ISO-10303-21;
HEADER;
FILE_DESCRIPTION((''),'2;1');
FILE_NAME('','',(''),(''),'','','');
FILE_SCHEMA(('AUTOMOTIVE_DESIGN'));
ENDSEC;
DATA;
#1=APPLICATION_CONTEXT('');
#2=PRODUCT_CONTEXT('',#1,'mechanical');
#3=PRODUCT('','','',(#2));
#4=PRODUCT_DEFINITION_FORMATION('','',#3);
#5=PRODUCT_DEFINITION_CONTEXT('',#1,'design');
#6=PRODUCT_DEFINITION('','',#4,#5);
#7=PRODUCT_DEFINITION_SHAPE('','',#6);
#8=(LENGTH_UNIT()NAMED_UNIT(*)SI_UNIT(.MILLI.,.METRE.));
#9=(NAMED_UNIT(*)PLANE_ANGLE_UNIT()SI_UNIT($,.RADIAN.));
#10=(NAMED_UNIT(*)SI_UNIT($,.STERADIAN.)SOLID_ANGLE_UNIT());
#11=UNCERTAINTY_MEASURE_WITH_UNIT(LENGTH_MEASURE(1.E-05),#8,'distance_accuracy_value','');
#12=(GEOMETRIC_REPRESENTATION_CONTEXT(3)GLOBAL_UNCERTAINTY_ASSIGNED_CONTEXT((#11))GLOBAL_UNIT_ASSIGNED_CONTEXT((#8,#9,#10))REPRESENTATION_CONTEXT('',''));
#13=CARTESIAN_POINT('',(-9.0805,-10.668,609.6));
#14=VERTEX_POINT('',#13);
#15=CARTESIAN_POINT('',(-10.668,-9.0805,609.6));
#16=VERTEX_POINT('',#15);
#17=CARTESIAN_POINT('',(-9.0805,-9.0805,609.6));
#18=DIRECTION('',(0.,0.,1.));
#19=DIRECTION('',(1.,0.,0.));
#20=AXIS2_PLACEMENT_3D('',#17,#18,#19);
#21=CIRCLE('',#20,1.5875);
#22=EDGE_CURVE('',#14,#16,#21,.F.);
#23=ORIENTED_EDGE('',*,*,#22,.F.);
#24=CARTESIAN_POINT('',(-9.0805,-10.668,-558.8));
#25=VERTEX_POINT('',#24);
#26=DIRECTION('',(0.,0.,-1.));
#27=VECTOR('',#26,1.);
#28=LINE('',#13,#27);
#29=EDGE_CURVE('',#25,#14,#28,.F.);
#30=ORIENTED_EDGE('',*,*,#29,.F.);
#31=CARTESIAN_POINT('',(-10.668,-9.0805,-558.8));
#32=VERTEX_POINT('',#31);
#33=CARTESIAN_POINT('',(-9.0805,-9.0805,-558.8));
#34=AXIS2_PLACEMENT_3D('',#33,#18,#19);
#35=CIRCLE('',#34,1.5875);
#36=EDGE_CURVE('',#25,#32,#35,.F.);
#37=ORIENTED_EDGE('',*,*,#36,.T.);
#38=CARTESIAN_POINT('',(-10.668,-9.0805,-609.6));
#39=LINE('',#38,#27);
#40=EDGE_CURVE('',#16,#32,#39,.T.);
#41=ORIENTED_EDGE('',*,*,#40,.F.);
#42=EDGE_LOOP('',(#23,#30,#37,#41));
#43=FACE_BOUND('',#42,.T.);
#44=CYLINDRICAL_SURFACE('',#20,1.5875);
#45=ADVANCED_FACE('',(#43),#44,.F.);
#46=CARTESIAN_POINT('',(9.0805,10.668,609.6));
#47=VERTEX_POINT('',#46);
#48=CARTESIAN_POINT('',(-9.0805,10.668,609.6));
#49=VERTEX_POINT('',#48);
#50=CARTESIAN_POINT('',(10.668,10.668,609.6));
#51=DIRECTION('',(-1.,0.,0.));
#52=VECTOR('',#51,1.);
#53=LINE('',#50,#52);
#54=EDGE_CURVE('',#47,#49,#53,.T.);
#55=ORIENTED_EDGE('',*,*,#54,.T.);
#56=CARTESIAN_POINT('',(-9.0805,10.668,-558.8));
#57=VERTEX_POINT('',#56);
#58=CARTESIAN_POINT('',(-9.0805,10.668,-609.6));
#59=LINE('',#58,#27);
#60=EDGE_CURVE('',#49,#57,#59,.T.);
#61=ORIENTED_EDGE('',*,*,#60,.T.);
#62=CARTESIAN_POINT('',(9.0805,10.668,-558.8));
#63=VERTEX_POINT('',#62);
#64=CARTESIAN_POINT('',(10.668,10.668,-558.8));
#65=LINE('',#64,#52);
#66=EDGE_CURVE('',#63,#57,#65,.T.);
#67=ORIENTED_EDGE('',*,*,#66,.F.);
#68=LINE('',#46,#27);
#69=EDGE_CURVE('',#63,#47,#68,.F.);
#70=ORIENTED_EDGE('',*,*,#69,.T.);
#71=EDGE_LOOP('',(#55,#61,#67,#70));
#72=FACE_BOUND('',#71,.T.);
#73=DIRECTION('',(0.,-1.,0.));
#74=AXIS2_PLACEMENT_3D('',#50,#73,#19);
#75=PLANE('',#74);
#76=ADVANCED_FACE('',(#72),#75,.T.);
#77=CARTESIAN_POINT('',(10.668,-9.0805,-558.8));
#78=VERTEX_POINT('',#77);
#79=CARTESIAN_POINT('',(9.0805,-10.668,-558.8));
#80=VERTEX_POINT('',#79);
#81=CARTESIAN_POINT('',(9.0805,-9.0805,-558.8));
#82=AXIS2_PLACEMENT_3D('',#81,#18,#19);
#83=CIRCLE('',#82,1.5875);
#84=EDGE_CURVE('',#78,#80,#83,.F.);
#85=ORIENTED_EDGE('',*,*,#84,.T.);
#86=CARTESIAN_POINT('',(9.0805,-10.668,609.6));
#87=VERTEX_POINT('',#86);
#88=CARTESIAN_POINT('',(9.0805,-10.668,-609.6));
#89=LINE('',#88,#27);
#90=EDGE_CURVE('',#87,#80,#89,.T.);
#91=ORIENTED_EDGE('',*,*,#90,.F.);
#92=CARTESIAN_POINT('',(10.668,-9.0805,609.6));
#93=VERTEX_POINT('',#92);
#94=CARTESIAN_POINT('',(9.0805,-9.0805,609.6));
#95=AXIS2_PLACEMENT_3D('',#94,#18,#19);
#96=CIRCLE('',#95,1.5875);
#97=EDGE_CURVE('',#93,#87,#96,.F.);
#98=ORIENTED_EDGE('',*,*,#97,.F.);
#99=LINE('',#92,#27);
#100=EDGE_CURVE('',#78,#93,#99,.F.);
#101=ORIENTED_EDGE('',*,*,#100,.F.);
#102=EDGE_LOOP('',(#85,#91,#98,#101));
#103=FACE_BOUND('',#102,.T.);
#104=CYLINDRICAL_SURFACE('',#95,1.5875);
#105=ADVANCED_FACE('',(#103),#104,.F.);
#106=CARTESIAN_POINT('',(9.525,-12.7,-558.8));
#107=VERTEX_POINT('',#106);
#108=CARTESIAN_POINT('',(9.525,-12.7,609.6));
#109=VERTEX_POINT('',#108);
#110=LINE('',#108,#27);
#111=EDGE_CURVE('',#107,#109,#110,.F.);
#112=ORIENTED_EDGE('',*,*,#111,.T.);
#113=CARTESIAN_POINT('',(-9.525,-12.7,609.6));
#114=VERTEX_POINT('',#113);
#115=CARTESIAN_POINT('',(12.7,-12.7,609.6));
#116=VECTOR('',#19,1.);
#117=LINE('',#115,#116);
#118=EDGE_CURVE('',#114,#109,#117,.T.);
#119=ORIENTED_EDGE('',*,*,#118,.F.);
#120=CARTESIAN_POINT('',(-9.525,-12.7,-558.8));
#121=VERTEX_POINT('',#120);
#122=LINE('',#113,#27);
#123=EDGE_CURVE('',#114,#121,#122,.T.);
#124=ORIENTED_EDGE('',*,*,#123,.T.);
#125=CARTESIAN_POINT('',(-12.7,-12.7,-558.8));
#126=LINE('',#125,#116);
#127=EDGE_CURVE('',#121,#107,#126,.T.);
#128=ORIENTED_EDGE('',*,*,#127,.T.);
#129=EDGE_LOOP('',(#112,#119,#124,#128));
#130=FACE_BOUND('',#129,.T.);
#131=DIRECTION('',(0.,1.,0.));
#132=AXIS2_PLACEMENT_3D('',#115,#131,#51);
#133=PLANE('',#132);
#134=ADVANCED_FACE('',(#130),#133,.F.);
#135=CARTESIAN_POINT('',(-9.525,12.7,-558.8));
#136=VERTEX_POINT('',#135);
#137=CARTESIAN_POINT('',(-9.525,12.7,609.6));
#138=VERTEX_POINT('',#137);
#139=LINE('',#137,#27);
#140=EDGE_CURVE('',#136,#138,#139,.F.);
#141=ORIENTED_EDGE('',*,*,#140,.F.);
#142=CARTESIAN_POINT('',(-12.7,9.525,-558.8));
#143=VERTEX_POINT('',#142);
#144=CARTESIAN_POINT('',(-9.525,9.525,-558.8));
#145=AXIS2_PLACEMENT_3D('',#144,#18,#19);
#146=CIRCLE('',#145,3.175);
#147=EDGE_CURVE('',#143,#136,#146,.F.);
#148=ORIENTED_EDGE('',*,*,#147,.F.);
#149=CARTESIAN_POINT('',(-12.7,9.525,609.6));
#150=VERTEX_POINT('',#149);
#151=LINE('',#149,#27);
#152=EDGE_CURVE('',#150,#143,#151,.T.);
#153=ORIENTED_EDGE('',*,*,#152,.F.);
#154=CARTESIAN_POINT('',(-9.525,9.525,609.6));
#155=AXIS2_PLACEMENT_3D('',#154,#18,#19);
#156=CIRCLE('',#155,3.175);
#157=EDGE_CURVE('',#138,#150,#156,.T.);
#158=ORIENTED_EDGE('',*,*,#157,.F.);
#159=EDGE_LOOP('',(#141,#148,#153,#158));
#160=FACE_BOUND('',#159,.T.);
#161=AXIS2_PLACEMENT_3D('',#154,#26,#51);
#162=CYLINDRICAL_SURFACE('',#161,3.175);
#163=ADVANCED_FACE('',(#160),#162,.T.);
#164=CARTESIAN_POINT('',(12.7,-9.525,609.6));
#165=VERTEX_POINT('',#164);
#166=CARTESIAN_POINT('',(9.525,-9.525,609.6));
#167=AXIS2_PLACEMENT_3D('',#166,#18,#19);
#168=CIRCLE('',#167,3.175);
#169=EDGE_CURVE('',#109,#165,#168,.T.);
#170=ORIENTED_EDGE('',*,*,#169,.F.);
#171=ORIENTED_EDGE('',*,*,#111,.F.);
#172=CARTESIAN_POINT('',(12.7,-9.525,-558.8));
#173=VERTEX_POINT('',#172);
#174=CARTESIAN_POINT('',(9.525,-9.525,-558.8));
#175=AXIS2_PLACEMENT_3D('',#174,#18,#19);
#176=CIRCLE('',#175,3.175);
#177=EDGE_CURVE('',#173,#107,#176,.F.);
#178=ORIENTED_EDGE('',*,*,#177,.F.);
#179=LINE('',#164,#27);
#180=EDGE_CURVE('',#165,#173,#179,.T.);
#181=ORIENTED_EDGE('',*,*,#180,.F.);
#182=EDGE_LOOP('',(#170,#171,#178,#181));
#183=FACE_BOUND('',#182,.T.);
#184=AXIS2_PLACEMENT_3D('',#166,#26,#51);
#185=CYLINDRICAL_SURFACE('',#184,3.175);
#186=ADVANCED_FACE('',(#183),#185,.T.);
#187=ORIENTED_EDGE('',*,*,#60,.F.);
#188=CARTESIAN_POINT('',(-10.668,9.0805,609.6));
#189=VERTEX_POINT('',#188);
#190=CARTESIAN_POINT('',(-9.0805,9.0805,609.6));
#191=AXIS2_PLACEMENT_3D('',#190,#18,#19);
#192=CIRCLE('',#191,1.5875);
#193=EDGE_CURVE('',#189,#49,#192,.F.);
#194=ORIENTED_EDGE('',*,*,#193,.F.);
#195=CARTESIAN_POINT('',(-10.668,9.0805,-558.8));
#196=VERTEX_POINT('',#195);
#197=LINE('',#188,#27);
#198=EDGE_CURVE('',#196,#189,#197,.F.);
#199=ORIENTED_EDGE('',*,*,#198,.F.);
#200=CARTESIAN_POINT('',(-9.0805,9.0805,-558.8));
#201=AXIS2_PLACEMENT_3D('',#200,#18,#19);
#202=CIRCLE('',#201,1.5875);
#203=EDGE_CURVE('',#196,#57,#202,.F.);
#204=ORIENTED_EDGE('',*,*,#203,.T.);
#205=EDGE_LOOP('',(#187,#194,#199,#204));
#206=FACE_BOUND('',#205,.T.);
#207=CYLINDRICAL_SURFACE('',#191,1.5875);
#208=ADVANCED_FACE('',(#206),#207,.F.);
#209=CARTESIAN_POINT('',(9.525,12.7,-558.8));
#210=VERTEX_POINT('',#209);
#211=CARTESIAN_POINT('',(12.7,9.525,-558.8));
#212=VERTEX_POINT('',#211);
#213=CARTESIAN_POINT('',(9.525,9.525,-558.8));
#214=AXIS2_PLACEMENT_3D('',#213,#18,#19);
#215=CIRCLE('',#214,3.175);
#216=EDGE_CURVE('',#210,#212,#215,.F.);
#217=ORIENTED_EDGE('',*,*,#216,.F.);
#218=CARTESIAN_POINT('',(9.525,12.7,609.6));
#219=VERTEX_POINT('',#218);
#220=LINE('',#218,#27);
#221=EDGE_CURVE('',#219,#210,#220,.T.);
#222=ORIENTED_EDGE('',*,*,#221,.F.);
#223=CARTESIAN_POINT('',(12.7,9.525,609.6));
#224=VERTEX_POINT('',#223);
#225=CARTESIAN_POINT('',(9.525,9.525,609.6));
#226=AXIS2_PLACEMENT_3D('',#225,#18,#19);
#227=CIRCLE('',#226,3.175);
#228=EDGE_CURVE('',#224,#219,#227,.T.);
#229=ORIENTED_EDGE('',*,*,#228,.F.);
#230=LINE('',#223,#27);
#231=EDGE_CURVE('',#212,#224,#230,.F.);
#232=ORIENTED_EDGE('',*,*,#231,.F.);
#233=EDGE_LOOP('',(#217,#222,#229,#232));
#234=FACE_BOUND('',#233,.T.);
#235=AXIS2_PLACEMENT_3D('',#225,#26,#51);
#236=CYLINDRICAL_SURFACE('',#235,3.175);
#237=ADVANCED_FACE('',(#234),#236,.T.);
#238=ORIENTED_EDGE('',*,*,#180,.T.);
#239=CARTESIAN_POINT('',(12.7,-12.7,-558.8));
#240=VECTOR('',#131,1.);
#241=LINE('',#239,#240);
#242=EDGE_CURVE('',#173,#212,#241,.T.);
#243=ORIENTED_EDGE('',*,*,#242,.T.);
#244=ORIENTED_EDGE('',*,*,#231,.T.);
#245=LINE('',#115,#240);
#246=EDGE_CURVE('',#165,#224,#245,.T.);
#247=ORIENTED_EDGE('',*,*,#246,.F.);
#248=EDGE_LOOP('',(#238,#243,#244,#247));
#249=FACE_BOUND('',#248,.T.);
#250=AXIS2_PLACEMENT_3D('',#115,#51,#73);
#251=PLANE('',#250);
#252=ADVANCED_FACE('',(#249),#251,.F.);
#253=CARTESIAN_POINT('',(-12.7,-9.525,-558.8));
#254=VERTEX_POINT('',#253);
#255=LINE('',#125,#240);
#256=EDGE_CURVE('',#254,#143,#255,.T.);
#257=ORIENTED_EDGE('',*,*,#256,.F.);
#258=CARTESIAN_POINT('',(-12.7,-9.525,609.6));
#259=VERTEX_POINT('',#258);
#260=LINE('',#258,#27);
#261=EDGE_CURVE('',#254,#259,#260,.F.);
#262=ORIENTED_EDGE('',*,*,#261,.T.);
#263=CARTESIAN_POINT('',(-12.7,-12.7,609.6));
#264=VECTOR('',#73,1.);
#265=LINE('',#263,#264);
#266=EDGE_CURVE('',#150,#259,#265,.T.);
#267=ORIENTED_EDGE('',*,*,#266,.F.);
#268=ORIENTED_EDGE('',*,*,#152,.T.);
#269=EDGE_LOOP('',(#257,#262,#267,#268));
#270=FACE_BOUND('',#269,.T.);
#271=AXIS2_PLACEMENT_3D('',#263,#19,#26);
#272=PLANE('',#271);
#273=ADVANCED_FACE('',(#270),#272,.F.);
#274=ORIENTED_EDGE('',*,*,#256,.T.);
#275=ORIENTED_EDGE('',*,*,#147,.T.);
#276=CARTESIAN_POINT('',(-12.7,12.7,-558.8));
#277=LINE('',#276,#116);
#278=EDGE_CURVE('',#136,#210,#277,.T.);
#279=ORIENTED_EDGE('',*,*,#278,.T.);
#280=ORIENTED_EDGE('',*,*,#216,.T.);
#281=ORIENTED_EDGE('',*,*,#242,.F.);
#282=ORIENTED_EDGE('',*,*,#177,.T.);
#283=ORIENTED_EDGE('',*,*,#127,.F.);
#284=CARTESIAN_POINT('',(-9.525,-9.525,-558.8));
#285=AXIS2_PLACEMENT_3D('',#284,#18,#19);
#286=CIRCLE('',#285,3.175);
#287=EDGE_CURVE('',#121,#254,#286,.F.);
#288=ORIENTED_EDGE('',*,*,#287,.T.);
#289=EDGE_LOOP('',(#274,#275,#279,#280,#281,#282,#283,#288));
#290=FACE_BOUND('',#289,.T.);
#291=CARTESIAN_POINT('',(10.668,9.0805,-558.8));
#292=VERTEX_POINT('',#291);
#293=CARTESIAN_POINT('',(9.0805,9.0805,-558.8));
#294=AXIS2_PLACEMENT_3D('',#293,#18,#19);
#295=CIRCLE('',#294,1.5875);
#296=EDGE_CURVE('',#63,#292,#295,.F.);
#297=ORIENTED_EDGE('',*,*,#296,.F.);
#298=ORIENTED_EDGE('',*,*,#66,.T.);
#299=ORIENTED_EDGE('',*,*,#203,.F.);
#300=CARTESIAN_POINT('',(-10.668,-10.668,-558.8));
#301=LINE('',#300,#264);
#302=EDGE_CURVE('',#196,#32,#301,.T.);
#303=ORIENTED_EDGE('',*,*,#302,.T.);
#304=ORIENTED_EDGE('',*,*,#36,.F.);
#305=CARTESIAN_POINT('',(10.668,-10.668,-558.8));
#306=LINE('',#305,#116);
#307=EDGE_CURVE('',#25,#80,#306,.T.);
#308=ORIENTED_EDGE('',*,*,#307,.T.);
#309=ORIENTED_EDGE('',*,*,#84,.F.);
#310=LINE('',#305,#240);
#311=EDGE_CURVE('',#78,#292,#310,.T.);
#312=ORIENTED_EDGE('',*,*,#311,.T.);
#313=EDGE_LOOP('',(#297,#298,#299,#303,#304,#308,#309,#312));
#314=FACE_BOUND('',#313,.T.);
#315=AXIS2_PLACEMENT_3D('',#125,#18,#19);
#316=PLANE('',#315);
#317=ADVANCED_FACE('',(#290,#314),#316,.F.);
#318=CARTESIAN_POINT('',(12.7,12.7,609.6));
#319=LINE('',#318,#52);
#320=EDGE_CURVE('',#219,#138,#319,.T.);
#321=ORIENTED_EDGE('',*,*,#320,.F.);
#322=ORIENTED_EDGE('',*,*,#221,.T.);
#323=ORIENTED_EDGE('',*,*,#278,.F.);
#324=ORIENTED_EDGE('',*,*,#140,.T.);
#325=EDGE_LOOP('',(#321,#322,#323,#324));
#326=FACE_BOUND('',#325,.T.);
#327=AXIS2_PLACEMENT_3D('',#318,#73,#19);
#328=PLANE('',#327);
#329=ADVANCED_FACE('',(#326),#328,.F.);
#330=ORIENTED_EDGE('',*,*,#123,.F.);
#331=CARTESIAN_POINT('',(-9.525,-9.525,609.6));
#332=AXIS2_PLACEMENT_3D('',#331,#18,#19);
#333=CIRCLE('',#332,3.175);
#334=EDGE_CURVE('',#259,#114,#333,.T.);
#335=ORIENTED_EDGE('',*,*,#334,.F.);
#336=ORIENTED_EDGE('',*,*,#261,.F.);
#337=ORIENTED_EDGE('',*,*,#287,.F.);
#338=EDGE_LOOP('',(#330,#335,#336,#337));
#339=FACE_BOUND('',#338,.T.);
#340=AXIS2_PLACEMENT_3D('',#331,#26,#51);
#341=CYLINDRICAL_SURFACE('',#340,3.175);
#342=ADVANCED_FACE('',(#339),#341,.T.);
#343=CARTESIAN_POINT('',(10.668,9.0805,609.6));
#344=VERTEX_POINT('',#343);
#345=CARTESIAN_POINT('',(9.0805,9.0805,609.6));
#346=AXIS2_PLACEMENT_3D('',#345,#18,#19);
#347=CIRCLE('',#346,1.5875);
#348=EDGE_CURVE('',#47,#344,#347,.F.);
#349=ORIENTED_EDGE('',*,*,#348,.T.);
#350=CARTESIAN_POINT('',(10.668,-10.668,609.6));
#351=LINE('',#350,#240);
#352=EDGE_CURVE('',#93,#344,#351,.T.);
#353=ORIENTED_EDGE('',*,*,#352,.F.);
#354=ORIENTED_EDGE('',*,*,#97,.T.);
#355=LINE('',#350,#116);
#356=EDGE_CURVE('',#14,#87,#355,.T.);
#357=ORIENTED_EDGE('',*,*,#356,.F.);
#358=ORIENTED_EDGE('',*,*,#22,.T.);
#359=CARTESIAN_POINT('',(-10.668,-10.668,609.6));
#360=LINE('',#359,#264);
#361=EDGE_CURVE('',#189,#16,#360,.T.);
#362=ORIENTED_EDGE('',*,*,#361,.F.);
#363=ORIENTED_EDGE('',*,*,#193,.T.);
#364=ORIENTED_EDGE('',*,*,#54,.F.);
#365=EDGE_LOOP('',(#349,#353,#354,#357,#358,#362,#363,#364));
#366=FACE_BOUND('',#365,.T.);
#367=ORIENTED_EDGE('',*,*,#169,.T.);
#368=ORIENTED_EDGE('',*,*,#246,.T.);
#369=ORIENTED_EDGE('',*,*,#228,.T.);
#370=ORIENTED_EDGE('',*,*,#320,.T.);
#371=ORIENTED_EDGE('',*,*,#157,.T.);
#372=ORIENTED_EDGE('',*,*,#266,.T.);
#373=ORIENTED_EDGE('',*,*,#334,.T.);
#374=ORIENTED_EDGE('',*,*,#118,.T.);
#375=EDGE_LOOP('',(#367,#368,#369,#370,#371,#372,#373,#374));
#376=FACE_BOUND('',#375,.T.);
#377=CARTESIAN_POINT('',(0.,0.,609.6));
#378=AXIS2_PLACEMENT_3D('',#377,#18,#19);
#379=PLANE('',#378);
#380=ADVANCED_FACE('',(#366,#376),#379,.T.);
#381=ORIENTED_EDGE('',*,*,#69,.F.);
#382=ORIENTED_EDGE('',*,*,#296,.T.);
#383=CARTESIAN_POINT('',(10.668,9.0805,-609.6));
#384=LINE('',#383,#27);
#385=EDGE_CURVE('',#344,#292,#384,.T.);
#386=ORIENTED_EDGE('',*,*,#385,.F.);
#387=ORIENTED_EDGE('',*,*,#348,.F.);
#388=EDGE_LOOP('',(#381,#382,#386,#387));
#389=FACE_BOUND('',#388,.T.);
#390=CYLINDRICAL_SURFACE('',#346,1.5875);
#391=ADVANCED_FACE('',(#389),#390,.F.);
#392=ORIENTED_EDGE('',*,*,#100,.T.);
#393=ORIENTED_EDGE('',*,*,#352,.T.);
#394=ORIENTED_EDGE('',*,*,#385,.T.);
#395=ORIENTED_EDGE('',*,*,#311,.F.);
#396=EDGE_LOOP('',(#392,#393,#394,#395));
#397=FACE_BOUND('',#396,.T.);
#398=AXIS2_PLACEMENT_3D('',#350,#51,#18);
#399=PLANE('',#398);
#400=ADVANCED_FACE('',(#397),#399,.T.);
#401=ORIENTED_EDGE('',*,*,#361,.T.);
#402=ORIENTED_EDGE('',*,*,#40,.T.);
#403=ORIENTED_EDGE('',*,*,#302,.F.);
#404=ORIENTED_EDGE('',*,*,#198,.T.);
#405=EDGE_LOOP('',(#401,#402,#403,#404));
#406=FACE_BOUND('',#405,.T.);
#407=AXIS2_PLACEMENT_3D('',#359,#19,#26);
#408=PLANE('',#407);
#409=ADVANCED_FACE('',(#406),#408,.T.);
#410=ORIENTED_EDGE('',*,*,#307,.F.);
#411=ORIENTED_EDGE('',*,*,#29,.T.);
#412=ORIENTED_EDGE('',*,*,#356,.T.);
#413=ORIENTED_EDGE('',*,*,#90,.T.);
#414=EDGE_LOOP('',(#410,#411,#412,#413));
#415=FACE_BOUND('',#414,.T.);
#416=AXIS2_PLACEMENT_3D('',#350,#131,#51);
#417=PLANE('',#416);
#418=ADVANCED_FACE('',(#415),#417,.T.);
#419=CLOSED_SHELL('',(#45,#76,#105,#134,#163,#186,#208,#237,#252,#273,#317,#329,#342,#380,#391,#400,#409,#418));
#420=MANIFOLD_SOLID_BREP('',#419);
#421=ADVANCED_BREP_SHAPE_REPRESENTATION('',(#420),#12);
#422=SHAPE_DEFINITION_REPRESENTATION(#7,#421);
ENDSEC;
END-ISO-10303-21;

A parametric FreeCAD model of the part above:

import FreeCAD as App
import Part
import Sketcher
Q = App.Units.Quantity


def edges_at(feature, points):
    """Names of the edges that pass closest to the given points."""
    edges = feature.Shape.Edges
    near = lambda p: min(range(len(edges)), key=lambda i: edges[i].distToShape(Part.Vertex(*p))[0])
    return sorted({f"Edge{near(p) + 1}" for p in points})

doc = App.newDocument("Part")
body = doc.addObject("PartDesign::Body", "Body")

# Sketch on XY plane
sketch1 = doc.addObject("Sketcher::SketchObject", "Sketch")
body.addObject(sketch1)
sketch1.AttachmentSupport = (doc.XY_Plane, [""])
sketch1.MapMode = "FlatFace"
sketch1.addGeometry([
    Part.LineSegment(App.Vector(-13, 13, 0), App.Vector(-13, -13, 0)),  # 0
    Part.LineSegment(App.Vector(-13, -13, 0), App.Vector(13, -13, 0)),  # 1
    Part.LineSegment(App.Vector(13, -13, 0), App.Vector(13, 13, 0)),  # 2
    Part.LineSegment(App.Vector(13, 13, 0), App.Vector(-13, 13, 0)),  # 3
    Part.LineSegment(App.Vector(11, -11, 0), App.Vector(-11, -11, 0)),  # 4
    Part.LineSegment(App.Vector(-11, -11, 0), App.Vector(-11, 11, 0)),  # 5
    Part.LineSegment(App.Vector(-11, 11, 0), App.Vector(11, 11, 0)),  # 6
    Part.LineSegment(App.Vector(11, 11, 0), App.Vector(11, -11, 0)),  # 7
], False)
sketch1.addConstraint([
    Sketcher.Constraint("Coincident", 0, 2, 1, 1),
    Sketcher.Constraint("Coincident", 1, 2, 2, 1),
    Sketcher.Constraint("Coincident", 2, 2, 3, 1),
    Sketcher.Constraint("Coincident", 3, 2, 0, 1),
    Sketcher.Constraint("Coincident", 4, 2, 5, 1),
    Sketcher.Constraint("Coincident", 5, 2, 6, 1),
    Sketcher.Constraint("Coincident", 6, 2, 7, 1),
    Sketcher.Constraint("Coincident", 7, 2, 4, 1),
    Sketcher.Constraint("Vertical", 0),
    Sketcher.Constraint("Horizontal", 1),
    Sketcher.Constraint("Vertical", 2),
    Sketcher.Constraint("Horizontal", 3),
    Sketcher.Constraint("Horizontal", 4),
    Sketcher.Constraint("Vertical", 5),
    Sketcher.Constraint("Horizontal", 6),
    Sketcher.Constraint("Vertical", 7),
    Sketcher.Constraint("Symmetric", 0, 2, 2, 2, -1, 1),
    Sketcher.Constraint("Symmetric", 4, 2, 6, 2, -1, 1),
    Sketcher.Constraint("Equal", 3, 0),
    Sketcher.Constraint("Equal", 6, 5),
    Sketcher.Constraint("DistanceX", 1, 1, 1, 2, Q("1 in")),
    Sketcher.Constraint("DistanceX", 4, 2, 4, 1, Q("0.84 in")),
])
pad1 = doc.addObject("PartDesign::Pad", "Pad")
body.addObject(pad1)
pad1.Profile = sketch1
pad1.Type = "TwoLengths"
pad1.Length = Q("24 in")
pad1.Length2 = Q("24 in")
doc.recompute()

fillet = doc.addObject("PartDesign::Fillet", "Fillet")
body.addObject(fillet)
fillet.Base = (pad1, edges_at(pad1, [
    (12.7, -12.7, 0),
    (-12.7, -12.7, 0),
    (-12.7, 12.7, 0),
    (12.7, 12.7, 0),
]))
fillet.Radius = Q("0.125 in")
doc.recompute()

fillet2 = doc.addObject("PartDesign::Fillet", "Fillet001")
body.addObject(fillet2)
fillet2.Base = (fillet, edges_at(fillet, [
    (10.668, -10.668, 0),
    (10.668, 10.668, 0),
    (-10.668, 10.668, 0),
    (-10.668, -10.668, 0),
]))
fillet2.Radius = Q("0.0625 in")

# Sketch on XZ plane
sketch2 = doc.addObject("Sketcher::SketchObject", "Sketch001")
body.addObject(sketch2)
sketch2.AttachmentSupport = (doc.XZ_Plane, [""])
sketch2.MapMode = "FlatFace"
sketch2.AttachmentOffset = App.Placement(App.Vector(0, 0, -0.5 * 25.4), App.Rotation())
sketch2.addGeometry([
    Part.LineSegment(App.Vector(-13, -610, 0), App.Vector(-13, -559, 0)),
    Part.LineSegment(App.Vector(-13, -559, 0), App.Vector(13, -559, 0)),
    Part.LineSegment(App.Vector(13, -559, 0), App.Vector(13, -610, 0)),
    Part.LineSegment(App.Vector(13, -610, 0), App.Vector(-13, -610, 0)),
], False)
sketch2.addConstraint([
    Sketcher.Constraint("Coincident", 0, 2, 1, 1),
    Sketcher.Constraint("Coincident", 1, 2, 2, 1),
    Sketcher.Constraint("Coincident", 2, 2, 3, 1),
    Sketcher.Constraint("Coincident", 3, 2, 0, 1),
    Sketcher.Constraint("Vertical", 0),
    Sketcher.Constraint("Horizontal", 1),
    Sketcher.Constraint("Vertical", 2),
    Sketcher.Constraint("Horizontal", 3),
    Sketcher.Constraint("DistanceX", 1, 1, 1, 2, Q("1 in")),
    Sketcher.Constraint("DistanceY", 0, 1, 0, 2, Q("2 in")),
    Sketcher.Constraint("DistanceY", 0, 2, -1, 1, Q("22 in")),
    Sketcher.Constraint("DistanceX", 0, 2, -1, 1, Q("0.5 in")),
])
pocket1 = doc.addObject("PartDesign::Pocket", "Pocket")
body.addObject(pocket1)
pocket1.Profile = sketch2
pocket1.Type = "ThroughAll"
pocket1.Reversed = True

doc.recompute()
